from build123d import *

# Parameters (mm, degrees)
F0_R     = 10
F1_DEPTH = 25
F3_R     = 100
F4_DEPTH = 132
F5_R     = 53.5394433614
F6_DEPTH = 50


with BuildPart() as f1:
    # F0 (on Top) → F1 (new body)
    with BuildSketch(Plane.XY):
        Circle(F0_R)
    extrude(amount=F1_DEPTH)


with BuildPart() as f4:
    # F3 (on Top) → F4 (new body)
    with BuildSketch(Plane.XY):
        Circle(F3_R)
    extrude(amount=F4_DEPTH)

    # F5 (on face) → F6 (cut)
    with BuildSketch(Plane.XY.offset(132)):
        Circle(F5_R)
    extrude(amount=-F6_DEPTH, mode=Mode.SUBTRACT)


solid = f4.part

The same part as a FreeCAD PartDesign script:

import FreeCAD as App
import Part
import Sketcher

doc = App.newDocument("Part")
params = doc.addObject("Spreadsheet::Sheet", "Params")
for row, (alias, value) in enumerate([
    ("sketch1_diameter", "20 mm"),
    ("pad1_length", "25 mm"),
    ("sketch2_diameter", "200 mm"),
    ("pad2_length", "132 mm"),
    ("pocket1_length", "50 mm"),
], start=1):
    params.set(f"A{row}", alias)
    params.set(f"B{row}", "=" + value)
    params.setAlias(f"B{row}", alias)

body = doc.addObject("PartDesign::Body", "Body")

# Sketch on XY plane
sketch1 = body.newObject("Sketcher::SketchObject", "Sketch")
sketch1.AttachmentSupport = (doc.getObject("XY_Plane"), [""])
sketch1.MapMode = "FlatFace"
sketch1.addGeometry(Part.Circle(App.Vector(0, 0, 0), App.Vector(0, 0, 1), 10), False)
sketch1.addConstraint(Sketcher.Constraint("Coincident", 0, 3, -1, 1))
sketch1.addConstraint(Sketcher.Constraint("Diameter", 0, 20.0))
sketch1.setExpression("Constraints[1]", "Params.sketch1_diameter")
pad1 = body.newObject("PartDesign::Pad", "Pad")
pad1.Profile = sketch1
pad1.setExpression("Length", "Params.pad1_length")
body2 = doc.addObject("PartDesign::Body", "Body001")

# Sketch on XY plane
sketch2 = body2.newObject("Sketcher::SketchObject", "Sketch001")
sketch2.AttachmentSupport = (doc.getObject("XY_Plane001"), [""])
sketch2.MapMode = "FlatFace"
sketch2.addGeometry(Part.Circle(App.Vector(0, 0, 0), App.Vector(0, 0, 1), 100), False)
sketch2.addConstraint(Sketcher.Constraint("Coincident", 0, 3, -1, 1))
sketch2.addConstraint(Sketcher.Constraint("Diameter", 0, 200.0))
sketch2.setExpression("Constraints[1]", "Params.sketch2_diameter")
pad2 = body2.newObject("PartDesign::Pad", "Pad001")
pad2.Profile = sketch2
pad2.setExpression("Length", "Params.pad2_length")

# Sketch on XY plane
sketch3 = body2.newObject("Sketcher::SketchObject", "Sketch002")
sketch3.AttachmentSupport = (doc.getObject("XY_Plane001"), [""])
sketch3.MapMode = "FlatFace"
sketch3.AttachmentOffset = App.Placement(App.Vector(0, 0, 132), App.Rotation())
sketch3.addGeometry(Part.Circle(App.Vector(0, 0, 0), App.Vector(0, 0, 1), 53.539443), False)
sketch3.addConstraint(Sketcher.Constraint("Coincident", 0, 3, -1, 1))
sketch3.addConstraint(Sketcher.Constraint("Diameter", 0, 107.078887))
pocket1 = body2.newObject("PartDesign::Pocket", "Pocket")
pocket1.Profile = sketch3
pocket1.setExpression("Length", "Params.pocket1_length")
body.Visibility = False

doc.recompute()
